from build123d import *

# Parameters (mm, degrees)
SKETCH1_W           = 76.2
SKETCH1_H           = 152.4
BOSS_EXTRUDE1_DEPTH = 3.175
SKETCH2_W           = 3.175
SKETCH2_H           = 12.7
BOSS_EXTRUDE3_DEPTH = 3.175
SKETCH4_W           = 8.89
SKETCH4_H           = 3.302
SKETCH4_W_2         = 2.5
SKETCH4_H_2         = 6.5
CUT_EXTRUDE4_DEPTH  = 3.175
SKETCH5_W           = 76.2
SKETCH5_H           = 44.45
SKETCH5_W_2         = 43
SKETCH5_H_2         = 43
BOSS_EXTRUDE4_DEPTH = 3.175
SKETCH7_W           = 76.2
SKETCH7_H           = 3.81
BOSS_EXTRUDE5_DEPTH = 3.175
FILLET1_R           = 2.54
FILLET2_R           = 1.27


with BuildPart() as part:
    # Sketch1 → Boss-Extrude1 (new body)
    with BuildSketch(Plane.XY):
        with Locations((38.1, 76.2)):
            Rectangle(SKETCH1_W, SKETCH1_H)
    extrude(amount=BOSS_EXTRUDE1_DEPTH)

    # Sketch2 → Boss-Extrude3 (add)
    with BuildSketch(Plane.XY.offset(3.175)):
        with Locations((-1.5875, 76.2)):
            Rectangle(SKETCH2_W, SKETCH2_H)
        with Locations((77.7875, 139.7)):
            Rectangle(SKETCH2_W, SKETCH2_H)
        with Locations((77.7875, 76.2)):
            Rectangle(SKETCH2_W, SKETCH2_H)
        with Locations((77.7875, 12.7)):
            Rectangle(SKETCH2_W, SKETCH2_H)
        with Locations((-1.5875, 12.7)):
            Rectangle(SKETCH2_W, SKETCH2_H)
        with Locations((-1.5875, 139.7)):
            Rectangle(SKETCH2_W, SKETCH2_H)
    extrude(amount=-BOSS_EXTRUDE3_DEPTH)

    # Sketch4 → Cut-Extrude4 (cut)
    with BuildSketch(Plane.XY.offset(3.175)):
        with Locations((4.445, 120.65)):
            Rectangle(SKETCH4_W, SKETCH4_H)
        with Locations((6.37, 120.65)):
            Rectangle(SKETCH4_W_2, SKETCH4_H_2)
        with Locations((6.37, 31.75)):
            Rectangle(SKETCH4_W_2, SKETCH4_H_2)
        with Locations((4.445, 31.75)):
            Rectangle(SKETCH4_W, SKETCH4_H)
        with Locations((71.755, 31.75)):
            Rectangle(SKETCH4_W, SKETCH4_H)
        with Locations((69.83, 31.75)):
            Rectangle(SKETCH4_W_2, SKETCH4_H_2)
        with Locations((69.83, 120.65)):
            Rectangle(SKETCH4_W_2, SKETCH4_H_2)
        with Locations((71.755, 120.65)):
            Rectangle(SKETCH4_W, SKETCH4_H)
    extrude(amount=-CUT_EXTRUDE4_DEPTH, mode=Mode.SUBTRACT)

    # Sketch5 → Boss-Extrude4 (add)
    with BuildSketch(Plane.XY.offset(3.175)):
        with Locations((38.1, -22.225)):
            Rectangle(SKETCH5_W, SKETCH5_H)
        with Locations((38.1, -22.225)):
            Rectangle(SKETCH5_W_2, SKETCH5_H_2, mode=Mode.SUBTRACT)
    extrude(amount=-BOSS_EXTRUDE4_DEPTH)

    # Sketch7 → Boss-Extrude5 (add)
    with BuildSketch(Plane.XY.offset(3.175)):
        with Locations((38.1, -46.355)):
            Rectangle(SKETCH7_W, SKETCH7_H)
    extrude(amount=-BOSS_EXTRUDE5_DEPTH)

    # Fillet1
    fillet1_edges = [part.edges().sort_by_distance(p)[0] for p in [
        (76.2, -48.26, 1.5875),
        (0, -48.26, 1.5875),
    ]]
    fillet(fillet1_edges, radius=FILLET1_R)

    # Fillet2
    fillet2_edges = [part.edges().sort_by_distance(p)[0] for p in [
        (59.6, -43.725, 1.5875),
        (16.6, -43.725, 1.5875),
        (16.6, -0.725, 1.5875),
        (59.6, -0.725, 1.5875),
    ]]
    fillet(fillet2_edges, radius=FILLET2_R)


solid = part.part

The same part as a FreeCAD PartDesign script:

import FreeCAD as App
import Part
import Sketcher

V = App.Vector
Q = App.Units.Quantity


def edges_at(feature, points):
    """Names of the edges that pass closest to the given points."""
    edges = feature.Shape.Edges
    near = lambda p: min(range(len(edges)), key=lambda i: edges[i].distToShape(Part.Vertex(*p))[0])
    return sorted({f"Edge{near(p) + 1}" for p in points})


def add_polygon(sketch, points):
    """Adds a closed chain of lines whose ends are joined by coincident constraints."""
    first, n = sketch.GeometryCount, len(points)
    for a, b in zip(points, points[1:] + points[:1]):
        sketch.addGeometry(Part.LineSegment(App.Vector(*a, 0), App.Vector(*b, 0)), False)
    for i in range(n):
        sketch.addConstraint(Sketcher.Constraint("Coincident", first + i, 2, first + (i + 1) % n, 1))

doc = App.newDocument("Part")
body = doc.addObject("PartDesign::Body", "Body")

sketch1 = body.newObject("Sketcher::SketchObject", "Sketch")
sketch1.AttachmentSupport = (doc.getObject("XY_Plane"), [""])
sketch1.MapMode = "FlatFace"
add_polygon(sketch1, [(0, 152), (0, 0), (76, 0), (76, 152)])
sketch1.addConstraint(Sketcher.Constraint("Vertical", 0))
sketch1.addConstraint(Sketcher.Constraint("Horizontal", 1))
sketch1.addConstraint(Sketcher.Constraint("Vertical", 2))
sketch1.addConstraint(Sketcher.Constraint("Horizontal", 3))
sketch1.addConstraint(Sketcher.Constraint("Coincident", 0, 2, -1, 1))
sketch1.addConstraint(Sketcher.Constraint("DistanceX", 1, 1, 1, 2, Q("3 in")))
sketch1.addConstraint(Sketcher.Constraint("DistanceY", 0, 2, 0, 1, Q("6 in")))
pad1 = body.newObject("PartDesign::Pad", "Pad")
pad1.Profile = sketch1
pad1.Length = Q("0.125 in")

sketch2 = body.newObject("Sketcher::SketchObject", "Sketch001")
sketch2.AttachmentSupport = (doc.getObject("XY_Plane"), [""])
sketch2.MapMode = "FlatFace"
sketch2.AttachmentOffset = App.Placement(V(0, 0, 0.125 * 25.4), App.Rotation())
add_polygon(sketch2, [(-3.2, 82.5), (-3.2, 69.8), (0, 69.8), (0, 82.5)])
add_polygon(sketch2, [(76.2, 146.1), (76.2, 133.3), (79.4, 133.3), (79.4, 146.1)])
add_polygon(sketch2, [(76.2, 82.5), (76.2, 69.8), (79.4, 69.8), (79.4, 82.5)])
add_polygon(sketch2, [(76.2, 19.1), (76.2, 6.3), (79.4, 6.3), (79.4, 19.1)])
add_polygon(sketch2, [(-3.2, 19.1), (-3.2, 6.3), (0, 6.3), (0, 19.1)])
add_polygon(sketch2, [(-3.2, 146.1), (-3.2, 133.3), (0, 133.3), (0, 146.1)])
sketch2.addConstraint(Sketcher.Constraint("Vertical", 0))
sketch2.addConstraint(Sketcher.Constraint("Horizontal", 1))
sketch2.addConstraint(Sketcher.Constraint("Vertical", 2))
sketch2.addConstraint(Sketcher.Constraint("Horizontal", 3))
sketch2.addConstraint(Sketcher.Constraint("Vertical", 4))
sketch2.addConstraint(Sketcher.Constraint("Horizontal", 5))
sketch2.addConstraint(Sketcher.Constraint("Vertical", 6))
sketch2.addConstraint(Sketcher.Constraint("Horizontal", 7))
sketch2.addConstraint(Sketcher.Constraint("Vertical", 8))
sketch2.addConstraint(Sketcher.Constraint("Horizontal", 9))
sketch2.addConstraint(Sketcher.Constraint("Vertical", 10))
sketch2.addConstraint(Sketcher.Constraint("Horizontal", 11))
sketch2.addConstraint(Sketcher.Constraint("Vertical", 12))
sketch2.addConstraint(Sketcher.Constraint("Horizontal", 13))
sketch2.addConstraint(Sketcher.Constraint("Vertical", 14))
sketch2.addConstraint(Sketcher.Constraint("Horizontal", 15))
sketch2.addConstraint(Sketcher.Constraint("Vertical", 16))
sketch2.addConstraint(Sketcher.Constraint("Horizontal", 17))
sketch2.addConstraint(Sketcher.Constraint("Vertical", 18))
sketch2.addConstraint(Sketcher.Constraint("Horizontal", 19))
sketch2.addConstraint(Sketcher.Constraint("Vertical", 20))
sketch2.addConstraint(Sketcher.Constraint("Horizontal", 21))
sketch2.addConstraint(Sketcher.Constraint("Vertical", 22))
sketch2.addConstraint(Sketcher.Constraint("Horizontal", 23))
sketch2.addConstraint(Sketcher.Constraint("PointOnObject", 1, 2, -2))
sketch2.addConstraint(Sketcher.Constraint("PointOnObject", 17, 2, -2))
sketch2.addConstraint(Sketcher.Constraint("PointOnObject", 21, 2, -2))
sketch2.addConstraint(Sketcher.Constraint("Horizontal", 1, 2, 8, 2))
sketch2.addConstraint(Sketcher.Constraint("Horizontal", 3, 2, 10, 2))
sketch2.addConstraint(Sketcher.Constraint("Horizontal", 13, 2, 16, 2))
sketch2.addConstraint(Sketcher.Constraint("Horizontal", 15, 2, 18, 2))
sketch2.addConstraint(Sketcher.Constraint("Horizontal", 5, 2, 20, 2))
sketch2.addConstraint(Sketcher.Constraint("Horizontal", 7, 2, 22, 2))
sketch2.addConstraint(Sketcher.Constraint("Vertical", 7, 2, 8, 2))
sketch2.addConstraint(Sketcher.Constraint("Vertical", 6, 2, 9, 2))
sketch2.addConstraint(Sketcher.Constraint("Vertical", 11, 2, 12, 2))
sketch2.addConstraint(Sketcher.Constraint("Vertical", 10, 2, 13, 2))
sketch2.addConstraint(Sketcher.Constraint("Vertical", 3, 2, 16, 2))
sketch2.addConstraint(Sketcher.Constraint("Vertical", 19, 2, 20, 2))
sketch2.addConstraint(Sketcher.Constraint("Equal", 3, 5))
sketch2.addConstraint(Sketcher.Constraint("Equal", 2, 4))
sketch2.addConstraint(Sketcher.Constraint("Equal", 10, 12))
sketch2.addConstraint(Sketcher.Constraint("DistanceY", 0, 2, 0, 1, Q("0.5 in")))
sketch2.addConstraint(Sketcher.Constraint("DistanceX", -1, 1, 4, 2, Q("3 in")))
sketch2.addConstraint(Sketcher.Constraint("DistanceY", 2, 2, 4, 2, Q("2 in")))
sketch2.addConstraint(Sketcher.Constraint("DistanceY", 12, 2, 11, 2, Q("3 in")))
sketch2.addConstraint(Sketcher.Constraint("DistanceX", 1, 1, 1, 2, Q("0.125 in")))
sketch2.addConstraint(Sketcher.Constraint("DistanceY", -1, 1, 0, 2, Q("2.75 in")))
pad2 = body.newObject("PartDesign::Pad", "Pad001")
pad2.Profile = sketch2
pad2.Length = Q("0.125 in")
pad2.Reversed = True

sketch3 = body.newObject("Sketcher::SketchObject", "Sketch002")
sketch3.AttachmentSupport = (doc.getObject("XY_Plane"), [""])
sketch3.MapMode = "FlatFace"
sketch3.AttachmentOffset = App.Placement(V(0, 0, 0.125 * 25.4), App.Rotation())
add_polygon(sketch3, [(0, 122.3), (0, 119), (5.1, 119), (5.1, 117.4), (7.6, 117.4), (7.6, 119), (8.9, 119), (8.9, 122.3), (7.6, 122.3), (7.6, 123.9), (5.1, 123.9), (5.1, 122.3)])
add_polygon(sketch3, [(5.1, 30.1), (5.1, 28.5), (7.6, 28.5), (7.6, 30.1), (8.9, 30.1), (8.9, 33.4), (7.6, 33.4), (7.6, 35), (5.1, 35), (5.1, 33.4), (0, 33.4), (0, 30.1)])
add_polygon(sketch3, [(67.3, 33.4), (67.3, 30.1), (68.6, 30.1), (68.6, 28.5), (71.1, 28.5), (71.1, 30.1), (76.2, 30.1), (76.2, 33.4), (71.1, 33.4), (71.1, 35), (68.6, 35), (68.6, 33.4)])
add_polygon(sketch3, [(68.6, 119), (68.6, 117.4), (71.1, 117.4), (71.1, 119), (76.2, 119), (76.2, 122.3), (71.1, 122.3), (71.1, 123.9), (68.6, 123.9), (68.6, 122.3), (67.3, 122.3), (67.3, 119)])
sketch3.addConstraint(Sketcher.Constraint("Vertical", 0))
sketch3.addConstraint(Sketcher.Constraint("Horizontal", 1))
sketch3.addConstraint(Sketcher.Constraint("Vertical", 2))
sketch3.addConstraint(Sketcher.Constraint("Horizontal", 3))
sketch3.addConstraint(Sketcher.Constraint("Vertical", 4))
sketch3.addConstraint(Sketcher.Constraint("Horizontal", 5))
sketch3.addConstraint(Sketcher.Constraint("Vertical", 6))
sketch3.addConstraint(Sketcher.Constraint("Horizontal", 7))
sketch3.addConstraint(Sketcher.Constraint("Vertical", 8))
sketch3.addConstraint(Sketcher.Constraint("Horizontal", 9))
sketch3.addConstraint(Sketcher.Constraint("Vertical", 10))
sketch3.addConstraint(Sketcher.Constraint("Horizontal", 11))
sketch3.addConstraint(Sketcher.Constraint("Vertical", 12))
sketch3.addConstraint(Sketcher.Constraint("Horizontal", 13))
sketch3.addConstraint(Sketcher.Constraint("Vertical", 14))
sketch3.addConstraint(Sketcher.Constraint("Horizontal", 15))
sketch3.addConstraint(Sketcher.Constraint("Vertical", 16))
sketch3.addConstraint(Sketcher.Constraint("Horizontal", 17))
sketch3.addConstraint(Sketcher.Constraint("Vertical", 18))
sketch3.addConstraint(Sketcher.Constraint("Horizontal", 19))
sketch3.addConstraint(Sketcher.Constraint("Vertical", 20))
sketch3.addConstraint(Sketcher.Constraint("Horizontal", 21))
sketch3.addConstraint(Sketcher.Constraint("Vertical", 22))
sketch3.addConstraint(Sketcher.Constraint("Horizontal", 23))
sketch3.addConstraint(Sketcher.Constraint("Vertical", 24))
sketch3.addConstraint(Sketcher.Constraint("Horizontal", 25))
sketch3.addConstraint(Sketcher.Constraint("Vertical", 26))
sketch3.addConstraint(Sketcher.Constraint("Horizontal", 27))
sketch3.addConstraint(Sketcher.Constraint("Vertical", 28))
sketch3.addConstraint(Sketcher.Constraint("Horizontal", 29))
sketch3.addConstraint(Sketcher.Constraint("Vertical", 30))
sketch3.addConstraint(Sketcher.Constraint("Horizontal", 31))
sketch3.addConstraint(Sketcher.Constraint("Vertical", 32))
sketch3.addConstraint(Sketcher.Constraint("Horizontal", 33))
sketch3.addConstraint(Sketcher.Constraint("Vertical", 34))
sketch3.addConstraint(Sketcher.Constraint("Horizontal", 35))
sketch3.addConstraint(Sketcher.Constraint("Vertical", 36))
sketch3.addConstraint(Sketcher.Constraint("Horizontal", 37))
sketch3.addConstraint(Sketcher.Constraint("Vertical", 38))
sketch3.addConstraint(Sketcher.Constraint("Horizontal", 39))
sketch3.addConstraint(Sketcher.Constraint("Vertical", 40))
sketch3.addConstraint(Sketcher.Constraint("Horizontal", 41))
sketch3.addConstraint(Sketcher.Constraint("Vertical", 42))
sketch3.addConstraint(Sketcher.Constraint("Horizontal", 43))
sketch3.addConstraint(Sketcher.Constraint("Vertical", 44))
sketch3.addConstraint(Sketcher.Constraint("Horizontal", 45))
sketch3.addConstraint(Sketcher.Constraint("Vertical", 46))
sketch3.addConstraint(Sketcher.Constraint("Horizontal", 47))
sketch3.addConstraint(Sketcher.Constraint("PointOnObject", 0, 2, -2))
sketch3.addConstraint(Sketcher.Constraint("PointOnObject", 21, 2, -2))
sketch3.addConstraint(Sketcher.Constraint("Horizontal", 1, 2, 4, 2))
sketch3.addConstraint(Sketcher.Constraint("Horizontal", 7, 2, 10, 2))
sketch3.addConstraint(Sketcher.Constraint("Horizontal", 17, 2, 20, 2))
sketch3.addConstraint(Sketcher.Constraint("Horizontal", 15, 2, 22, 2))
sketch3.addConstraint(Sketcher.Constraint("Horizontal", 23, 2, 24, 2))
sketch3.addConstraint(Sketcher.Constraint("Horizontal", 13, 2, 26, 2))
sketch3.addConstraint(Sketcher.Constraint("Horizontal", 25, 2, 28, 2))
sketch3.addConstraint(Sketcher.Constraint("Horizontal", 21, 2, 30, 2))
sketch3.addConstraint(Sketcher.Constraint("Horizontal", 19, 2, 32, 2))
sketch3.addConstraint(Sketcher.Constraint("Horizontal", 31, 2, 34, 2))
sketch3.addConstraint(Sketcher.Constraint("Horizontal", 3, 2, 36, 2))
sketch3.addConstraint(Sketcher.Constraint("Horizontal", 5, 2, 38, 2))
sketch3.addConstraint(Sketcher.Constraint("Horizontal", 11, 2, 40, 2))
sketch3.addConstraint(Sketcher.Constraint("Horizontal", 9, 2, 42, 2))
sketch3.addConstraint(Sketcher.Constraint("Horizontal", 41, 2, 44, 2))
sketch3.addConstraint(Sketcher.Constraint("Horizontal", 39, 2, 46, 2))
sketch3.addConstraint(Sketcher.Constraint("Vertical", 4, 2, 7, 2))
sketch3.addConstraint(Sketcher.Constraint("Vertical", 2, 2, 9, 2))
sketch3.addConstraint(Sketcher.Constraint("Vertical", 10, 2, 12, 2))
sketch3.addConstraint(Sketcher.Constraint("Vertical", 8, 2, 13, 2))
sketch3.addConstraint(Sketcher.Constraint("Vertical", 6, 2, 15, 2))
sketch3.addConstraint(Sketcher.Constraint("Vertical", 14, 2, 17, 2))
sketch3.addConstraint(Sketcher.Constraint("Vertical", 12, 2, 19, 2))
sketch3.addConstraint(Sketcher.Constraint("Vertical", 28, 2, 31, 2))
sketch3.addConstraint(Sketcher.Constraint("Vertical", 26, 2, 33, 2))
sketch3.addConstraint(Sketcher.Constraint("Vertical", 34, 2, 36, 2))
sketch3.addConstraint(Sketcher.Constraint("Vertical", 32, 2, 37, 2))
sketch3.addConstraint(Sketcher.Constraint("Vertical", 30, 2, 39, 2))
sketch3.addConstraint(Sketcher.Constraint("Vertical", 38, 2, 41, 2))
sketch3.addConstraint(Sketcher.Constraint("Vertical", 36, 2, 43, 2))
sketch3.addConstraint(Sketcher.Constraint("Vertical", 35, 2, 45, 2))
sketch3.addConstraint(Sketcher.Constraint("Equal", 17, 25))
sketch3.addConstraint(Sketcher.Constraint("Equal", 19, 27))
sketch3.addConstraint(Sketcher.Constraint("Equal", 23, 29))
sketch3.addConstraint(Sketcher.Constraint("Equal", 4, 8))
sketch3.addConstraint(Sketcher.Constraint("Equal", 10, 12))
sketch3.addConstraint(Sketcher.Constraint("Equal", 6, 16))
sketch3.addConstraint(Sketcher.Constraint("Equal", 14, 18))
sketch3.addConstraint(Sketcher.Constraint("DistanceX", -1, 1, 29, 2, Q("3 in")))
sketch3.addConstraint(Sketcher.Constraint("DistanceX", 5, 1, 5, 2, Q("0.05 in")))
sketch3.addConstraint(Sketcher.Constraint("DistanceY", 0, 2, 0, 1, Q("0.13 in")))
sketch3.addConstraint(Sketcher.Constraint("DistanceX", -1, 1, 3, 2, Q("0.3 in")))
sketch3.addConstraint(Sketcher.Constraint("DistanceY", 12, 2, 2, 2, Q("3.5 in")))
sketch3.addConstraint(Sketcher.Constraint("DistanceY", -1, 1, 0, 2, Q("4.685 in")))
sketch3.addConstraint(Sketcher.Constraint("DistanceX", 1, 1, 1, 2, 5.12))
sketch3.addConstraint(Sketcher.Constraint("DistanceY", 2, 2, 2, 1, 1.599))
pocket1 = body.newObject("PartDesign::Pocket", "Pocket")
pocket1.Profile = sketch3
pocket1.Length = Q("0.125 in")

sketch4 = body.newObject("Sketcher::SketchObject", "Sketch003")
sketch4.AttachmentSupport = (doc.getObject("XY_Plane"), [""])
sketch4.MapMode = "FlatFace"
sketch4.AttachmentOffset = App.Placement(V(0, 0, 0.125 * 25.4), App.Rotation())
add_polygon(sketch4, [(0, 0), (0, -44), (76, -44), (76, 0)])
add_polygon(sketch4, [(60, -44), (17, -44), (17, -1), (60, -1)])
sketch4.addConstraint(Sketcher.Constraint("Vertical", 0))
sketch4.addConstraint(Sketcher.Constraint("Horizontal", 1))
sketch4.addConstraint(Sketcher.Constraint("Vertical", 2))
sketch4.addConstraint(Sketcher.Constraint("Horizontal", 3))
sketch4.addConstraint(Sketcher.Constraint("Horizontal", 4))
sketch4.addConstraint(Sketcher.Constraint("Vertical", 5))
sketch4.addConstraint(Sketcher.Constraint("Horizontal", 6))
sketch4.addConstraint(Sketcher.Constraint("Vertical", 7))
sketch4.addConstraint(Sketcher.Constraint("Coincident", 3, 2, -1, 1))
sketch4.addConstraint(Sketcher.Constraint("Equal", 6, 5))
sketch4.addConstraint(Sketcher.Constraint("DistanceX", 1, 1, 1, 2, Q("3 in")))
sketch4.addConstraint(Sketcher.Constraint("DistanceY", 0, 2, 0, 1, Q("1.75 in")))
sketch4.addConstraint(Sketcher.Constraint("DistanceX", 4, 2, 4, 1, 43.0))
sketch4.addConstraint(Sketcher.Constraint("DistanceX", -1, 1, 4, 2, 16.6))
sketch4.addConstraint(Sketcher.Constraint("DistanceY", 4, 2, -1, 1, 43.725))
pad3 = body.newObject("PartDesign::Pad", "Pad002")
pad3.Profile = sketch4
pad3.Length = Q("0.125 in")
pad3.Reversed = True

sketch5 = body.newObject("Sketcher::SketchObject", "Sketch004")
sketch5.AttachmentSupport = (doc.getObject("XY_Plane"), [""])
sketch5.MapMode = "FlatFace"
sketch5.AttachmentOffset = App.Placement(V(0, 0, 0.125 * 25.4), App.Rotation())
add_polygon(sketch5, [(0, -44.5), (0, -48.3), (76.2, -48.3), (76.2, -44.5)])
sketch5.addConstraint(Sketcher.Constraint("Vertical", 0))
sketch5.addConstraint(Sketcher.Constraint("Horizontal", 1))
sketch5.addConstraint(Sketcher.Constraint("Vertical", 2))
sketch5.addConstraint(Sketcher.Constraint("Horizontal", 3))
sketch5.addConstraint(Sketcher.Constraint("PointOnObject", 0, 2, -2))
sketch5.addConstraint(Sketcher.Constraint("DistanceX", 1, 1, 1, 2, Q("3 in")))
sketch5.addConstraint(Sketcher.Constraint("DistanceY", 0, 2, 0, 1, Q("0.15 in")))
sketch5.addConstraint(Sketcher.Constraint("DistanceY", 0, 2, -1, 1, Q("1.9 in")))
pad4 = body.newObject("PartDesign::Pad", "Pad003")
pad4.Profile = sketch5
pad4.Length = Q("0.125 in")
pad4.Reversed = True
doc.recompute()

fillet = body.newObject("PartDesign::Fillet", "Fillet")
fillet.Base = (pad4, edges_at(pad4, [(76.2, -48.26, 1.587), (0, -48.26, 1.587)]))
fillet.Radius = Q("0.1 in")
doc.recompute()

fillet2 = body.newObject("PartDesign::Fillet", "Fillet001")
fillet2.Base = (fillet, edges_at(fillet, [
    (59.6, -43.725, 1.587),
    (16.6, -43.725, 1.587),
    (16.6, -0.725, 1.587),
    (59.6, -0.725, 1.587),
]))
fillet2.Radius = Q("0.05 in")

doc.recompute()
